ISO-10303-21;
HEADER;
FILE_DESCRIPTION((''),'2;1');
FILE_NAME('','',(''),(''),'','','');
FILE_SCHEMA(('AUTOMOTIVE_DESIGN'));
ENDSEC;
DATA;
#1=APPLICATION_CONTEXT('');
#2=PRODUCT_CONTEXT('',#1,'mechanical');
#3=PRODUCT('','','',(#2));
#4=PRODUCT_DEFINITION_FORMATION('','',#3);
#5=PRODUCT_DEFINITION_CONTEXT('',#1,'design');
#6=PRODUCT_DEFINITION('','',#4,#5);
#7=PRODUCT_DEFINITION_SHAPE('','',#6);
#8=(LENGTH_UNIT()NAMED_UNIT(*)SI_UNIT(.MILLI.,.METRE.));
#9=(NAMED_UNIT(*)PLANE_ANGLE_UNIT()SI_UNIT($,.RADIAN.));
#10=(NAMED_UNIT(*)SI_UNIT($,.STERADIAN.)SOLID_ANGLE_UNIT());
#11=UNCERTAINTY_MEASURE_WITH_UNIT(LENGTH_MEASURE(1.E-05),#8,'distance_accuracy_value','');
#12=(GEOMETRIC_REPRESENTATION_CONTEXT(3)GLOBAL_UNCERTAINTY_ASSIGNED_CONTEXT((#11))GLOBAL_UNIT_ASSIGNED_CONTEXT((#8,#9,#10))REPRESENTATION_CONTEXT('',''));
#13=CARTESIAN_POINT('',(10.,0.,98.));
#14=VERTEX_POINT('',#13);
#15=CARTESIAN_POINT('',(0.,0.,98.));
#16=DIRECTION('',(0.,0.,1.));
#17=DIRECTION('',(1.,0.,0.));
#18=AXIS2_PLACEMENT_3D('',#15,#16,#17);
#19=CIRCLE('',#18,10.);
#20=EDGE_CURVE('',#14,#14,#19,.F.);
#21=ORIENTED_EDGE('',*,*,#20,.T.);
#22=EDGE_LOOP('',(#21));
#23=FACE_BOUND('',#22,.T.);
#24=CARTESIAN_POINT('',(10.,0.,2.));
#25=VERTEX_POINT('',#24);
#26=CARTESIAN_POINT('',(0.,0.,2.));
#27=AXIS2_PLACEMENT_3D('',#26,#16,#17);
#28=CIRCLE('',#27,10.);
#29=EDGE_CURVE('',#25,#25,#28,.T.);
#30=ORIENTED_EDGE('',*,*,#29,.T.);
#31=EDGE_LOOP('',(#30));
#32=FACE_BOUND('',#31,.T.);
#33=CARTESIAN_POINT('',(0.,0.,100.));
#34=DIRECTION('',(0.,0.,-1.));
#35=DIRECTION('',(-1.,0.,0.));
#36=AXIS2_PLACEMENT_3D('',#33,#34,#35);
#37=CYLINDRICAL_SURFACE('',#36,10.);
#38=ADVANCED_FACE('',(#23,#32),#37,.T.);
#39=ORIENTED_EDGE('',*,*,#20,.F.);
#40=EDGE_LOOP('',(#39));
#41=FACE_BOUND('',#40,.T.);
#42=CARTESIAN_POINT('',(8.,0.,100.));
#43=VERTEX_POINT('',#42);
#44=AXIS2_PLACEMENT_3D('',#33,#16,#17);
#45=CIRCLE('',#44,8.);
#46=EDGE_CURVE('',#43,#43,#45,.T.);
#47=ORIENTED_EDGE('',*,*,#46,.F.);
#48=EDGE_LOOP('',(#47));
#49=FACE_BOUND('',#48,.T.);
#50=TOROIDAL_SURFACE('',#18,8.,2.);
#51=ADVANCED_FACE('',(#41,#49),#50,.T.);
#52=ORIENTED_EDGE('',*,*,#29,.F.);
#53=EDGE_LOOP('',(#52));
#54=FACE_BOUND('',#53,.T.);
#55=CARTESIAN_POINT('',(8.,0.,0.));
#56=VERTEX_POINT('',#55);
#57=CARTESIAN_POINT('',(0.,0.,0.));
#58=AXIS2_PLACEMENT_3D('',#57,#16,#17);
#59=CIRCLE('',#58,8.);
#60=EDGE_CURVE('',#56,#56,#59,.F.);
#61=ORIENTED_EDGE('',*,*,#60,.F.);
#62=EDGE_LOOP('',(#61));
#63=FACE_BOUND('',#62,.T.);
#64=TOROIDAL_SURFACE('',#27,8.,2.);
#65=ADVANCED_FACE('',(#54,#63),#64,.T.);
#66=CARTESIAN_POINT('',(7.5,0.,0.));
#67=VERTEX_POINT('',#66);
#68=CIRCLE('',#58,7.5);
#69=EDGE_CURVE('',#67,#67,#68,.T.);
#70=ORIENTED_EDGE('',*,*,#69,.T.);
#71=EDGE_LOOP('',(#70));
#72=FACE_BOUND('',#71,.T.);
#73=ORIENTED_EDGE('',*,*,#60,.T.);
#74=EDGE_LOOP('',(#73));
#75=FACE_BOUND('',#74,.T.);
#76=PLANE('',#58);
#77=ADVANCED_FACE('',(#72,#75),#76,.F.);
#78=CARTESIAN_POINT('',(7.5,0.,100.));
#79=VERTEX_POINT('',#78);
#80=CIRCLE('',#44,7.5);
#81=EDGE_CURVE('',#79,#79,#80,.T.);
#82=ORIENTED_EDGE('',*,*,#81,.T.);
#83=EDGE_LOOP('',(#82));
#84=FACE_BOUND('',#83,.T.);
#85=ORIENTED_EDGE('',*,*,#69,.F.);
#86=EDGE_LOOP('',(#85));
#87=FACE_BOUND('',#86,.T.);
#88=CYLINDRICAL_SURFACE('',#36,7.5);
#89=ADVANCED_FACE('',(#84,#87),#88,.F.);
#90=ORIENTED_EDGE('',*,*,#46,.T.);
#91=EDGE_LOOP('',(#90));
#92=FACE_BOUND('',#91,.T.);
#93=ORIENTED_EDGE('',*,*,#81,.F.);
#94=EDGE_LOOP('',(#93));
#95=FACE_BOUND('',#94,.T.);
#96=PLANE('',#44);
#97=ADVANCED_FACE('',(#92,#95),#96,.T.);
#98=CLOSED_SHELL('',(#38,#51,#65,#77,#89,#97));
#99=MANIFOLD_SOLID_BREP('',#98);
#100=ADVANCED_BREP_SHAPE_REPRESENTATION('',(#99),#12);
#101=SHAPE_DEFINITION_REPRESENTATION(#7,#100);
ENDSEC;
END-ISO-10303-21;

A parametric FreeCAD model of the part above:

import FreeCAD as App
import Part
import Sketcher

V = App.Vector
Q = App.Units.Quantity


def edges_at(feature, points):
    """Names of the edges that pass closest to the given points."""
    edges = feature.Shape.Edges
    near = lambda p: min(range(len(edges)), key=lambda i: edges[i].distToShape(Part.Vertex(*p))[0])
    return sorted({f"Edge{near(p) + 1}" for p in points})

doc = App.newDocument("Part")
params = doc.addObject("Spreadsheet::Sheet", "Params")
for row, (alias, value) in enumerate([
    ("sketch1_diameter", "20 mm"),
    ("sketch1_diameter2", "15 mm"),
    ("pad1_length", "100 mm"),
    ("fillet_radius", "2 mm"),
], start=1):
    params.set(f"A{row}", alias)
    params.set(f"B{row}", "=" + value)
    params.setAlias(f"B{row}", alias)

body = doc.addObject("PartDesign::Body", "Body")

# Sketch on XY plane
sketch1 = body.newObject("Sketcher::SketchObject", "Sketch")
sketch1.AttachmentSupport = (doc.getObject("XY_Plane"), [""])
sketch1.MapMode = "FlatFace"
sketch1.addGeometry([
    Part.Circle(V(0, 0, 0), V(0, 0, 1), 10),
    Part.Circle(V(0, 0, 0), V(0, 0, 1), 7.5),
], False)
sketch1.addConstraint([
    Sketcher.Constraint("Coincident", 0, 3, -1, 1),
    Sketcher.Constraint("Coincident", 1, 3, -1, 1),
    Sketcher.Constraint("Diameter", 0, Q("20 mm")),
    Sketcher.Constraint("Diameter", 1, Q("15 mm")),
])
sketch1.setExpression("Constraints[2]", "Params.sketch1_diameter")
sketch1.setExpression("Constraints[3]", "Params.sketch1_diameter2")
pad1 = body.newObject("PartDesign::Pad", "Pad")
pad1.Profile = sketch1
pad1.setExpression("Length", "Params.pad1_length")
doc.recompute()

fillet = body.newObject("PartDesign::Fillet", "Fillet")
fillet.Base = (pad1, edges_at(pad1, [(-10, 0, 0), (-10, 0, 100)]))
fillet.setExpression("Radius", "Params.fillet_radius")

doc.recompute()
